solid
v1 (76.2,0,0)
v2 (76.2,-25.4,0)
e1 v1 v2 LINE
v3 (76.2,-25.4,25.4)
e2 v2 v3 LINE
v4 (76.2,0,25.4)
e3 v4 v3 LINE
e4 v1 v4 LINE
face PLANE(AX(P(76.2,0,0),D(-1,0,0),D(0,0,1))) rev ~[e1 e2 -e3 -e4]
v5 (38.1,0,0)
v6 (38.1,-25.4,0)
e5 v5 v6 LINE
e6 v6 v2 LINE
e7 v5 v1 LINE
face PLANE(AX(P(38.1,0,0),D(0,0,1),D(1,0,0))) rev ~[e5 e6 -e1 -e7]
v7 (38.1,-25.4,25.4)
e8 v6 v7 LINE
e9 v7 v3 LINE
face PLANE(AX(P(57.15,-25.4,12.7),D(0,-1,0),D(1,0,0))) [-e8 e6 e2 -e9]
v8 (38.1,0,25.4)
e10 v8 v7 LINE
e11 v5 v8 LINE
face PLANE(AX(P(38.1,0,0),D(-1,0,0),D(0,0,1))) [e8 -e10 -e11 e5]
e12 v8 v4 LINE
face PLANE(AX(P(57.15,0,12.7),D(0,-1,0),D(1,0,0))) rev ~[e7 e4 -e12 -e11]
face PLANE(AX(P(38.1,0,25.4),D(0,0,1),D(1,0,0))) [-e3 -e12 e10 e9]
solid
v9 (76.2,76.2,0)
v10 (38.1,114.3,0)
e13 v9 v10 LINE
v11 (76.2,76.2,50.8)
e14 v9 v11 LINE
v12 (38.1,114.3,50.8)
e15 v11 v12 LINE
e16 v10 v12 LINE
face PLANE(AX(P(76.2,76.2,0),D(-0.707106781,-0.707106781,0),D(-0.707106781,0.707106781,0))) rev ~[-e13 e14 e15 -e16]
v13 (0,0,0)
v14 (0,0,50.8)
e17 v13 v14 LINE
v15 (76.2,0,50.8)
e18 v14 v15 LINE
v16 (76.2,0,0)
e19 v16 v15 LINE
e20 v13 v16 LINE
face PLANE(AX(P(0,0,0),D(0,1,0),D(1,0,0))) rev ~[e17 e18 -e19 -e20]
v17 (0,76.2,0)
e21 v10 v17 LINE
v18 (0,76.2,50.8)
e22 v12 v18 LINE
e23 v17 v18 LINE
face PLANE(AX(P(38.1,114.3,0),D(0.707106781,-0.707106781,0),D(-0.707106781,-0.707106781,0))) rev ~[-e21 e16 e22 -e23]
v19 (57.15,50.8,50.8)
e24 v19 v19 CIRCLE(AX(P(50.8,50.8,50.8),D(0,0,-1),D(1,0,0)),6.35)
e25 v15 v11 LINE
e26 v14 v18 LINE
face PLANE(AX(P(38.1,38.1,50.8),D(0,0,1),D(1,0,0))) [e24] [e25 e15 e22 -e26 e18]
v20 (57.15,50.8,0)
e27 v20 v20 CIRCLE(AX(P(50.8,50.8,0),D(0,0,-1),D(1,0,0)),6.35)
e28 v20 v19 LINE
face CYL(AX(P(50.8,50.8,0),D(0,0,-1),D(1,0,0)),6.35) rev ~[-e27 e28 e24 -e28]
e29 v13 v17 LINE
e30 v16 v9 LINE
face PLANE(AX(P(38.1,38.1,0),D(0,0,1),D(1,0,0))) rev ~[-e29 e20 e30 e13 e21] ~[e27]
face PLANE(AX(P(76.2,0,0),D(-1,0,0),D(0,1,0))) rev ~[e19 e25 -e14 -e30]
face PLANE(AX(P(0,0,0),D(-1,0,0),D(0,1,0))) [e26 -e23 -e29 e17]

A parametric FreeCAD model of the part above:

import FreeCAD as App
import Part
import Sketcher

V = App.Vector
Q = App.Units.Quantity

doc = App.newDocument("Part")
body = doc.addObject("PartDesign::Body", "Body")

sketch1 = body.newObject("Sketcher::SketchObject", "Sketch")
sketch1.AttachmentSupport = (doc.getObject("XY_Plane"), [""])
sketch1.MapMode = "FlatFace"
sketch1.addGeometry([
    Part.LineSegment(V(0, 76, 0), V(0, 0, 0)),
    Part.LineSegment(V(0, 0, 0), V(76, 0, 0)),
    Part.LineSegment(V(76, 0, 0), V(76, 76, 0)),
    Part.LineSegment(V(76, 76, 0), V(38, 114, 0)),
    Part.LineSegment(V(38, 114, 0), V(0, 76, 0)),
], False)
sketch1.addConstraint([
    Sketcher.Constraint("Coincident", 0, 2, 1, 1),
    Sketcher.Constraint("Coincident", 1, 2, 2, 1),
    Sketcher.Constraint("Coincident", 2, 2, 3, 1),
    Sketcher.Constraint("Coincident", 3, 2, 4, 1),
    Sketcher.Constraint("Coincident", 4, 2, 0, 1),
    Sketcher.Constraint("Vertical", 0),
    Sketcher.Constraint("Horizontal", 1),
    Sketcher.Constraint("Vertical", 2),
    Sketcher.Constraint("Coincident", 0, 2, -1, 1),
    Sketcher.Constraint("Perpendicular", 3, 4),
    Sketcher.Constraint("Horizontal", 2, 2, 4, 2),
    Sketcher.Constraint("Equal", 1, 0),
    Sketcher.Constraint("Equal", 3, 4),
    Sketcher.Constraint("DistanceX", 1, 1, 1, 2, Q("3 in")),
])
pad1 = body.newObject("PartDesign::Pad", "Pad")
pad1.Profile = sketch1
pad1.Length = Q("2 in")

sketch2 = body.newObject("Sketcher::SketchObject", "Sketch001")
sketch2.AttachmentSupport = (doc.getObject("XY_Plane"), [""])
sketch2.MapMode = "FlatFace"
sketch2.addGeometry(Part.Circle(V(51, 51, 0), V(0, 0, 1), 6), False)
sketch2.addConstraint([
    Sketcher.Constraint("Diameter", 0, Q("0.5 in")),
    Sketcher.Constraint("DistanceX", -1, 1, 0, 3, Q("2 in")),
    Sketcher.Constraint("DistanceY", -1, 1, 0, 3, Q("2 in")),
])
pocket1 = body.newObject("PartDesign::Pocket", "Pocket")
pocket1.Profile = sketch2
pocket1.Length = Q("2 in")
pocket1.Reversed = True
body2 = doc.addObject("PartDesign::Body", "Body001")

sketch3 = body2.newObject("Sketcher::SketchObject", "Sketch002")
sketch3.AttachmentSupport = (doc.getObject("XZ_Plane001"), [""])
sketch3.MapMode = "FlatFace"
sketch3.addGeometry([
    Part.LineSegment(V(38, 25, 0), V(38, 0, 0)),
    Part.LineSegment(V(38, 0, 0), V(76, 0, 0)),
    Part.LineSegment(V(76, 0, 0), V(76, 25, 0)),
    Part.LineSegment(V(76, 25, 0), V(38, 25, 0)),
], False)
sketch3.addConstraint([
    Sketcher.Constraint("Coincident", 0, 2, 1, 1),
    Sketcher.Constraint("Coincident", 1, 2, 2, 1),
    Sketcher.Constraint("Coincident", 2, 2, 3, 1),
    Sketcher.Constraint("Coincident", 3, 2, 0, 1),
    Sketcher.Constraint("Vertical", 0),
    Sketcher.Constraint("Horizontal", 1),
    Sketcher.Constraint("Vertical", 2),
    Sketcher.Constraint("Horizontal", 3),
    Sketcher.Constraint("PointOnObject", 0, 2, -1),
    Sketcher.Constraint("DistanceY", 0, 2, 0, 1, Q("1 in")),
    Sketcher.Constraint("DistanceX", 1, 1, 1, 2, Q("1.5 in")),
    Sketcher.Constraint("DistanceX", -1, 1, 1, 2, Q("3 in")),
])
pad2 = body2.newObject("PartDesign::Pad", "Pad001")
pad2.Profile = sketch3
pad2.Length = Q("1 in")

doc.recompute()
